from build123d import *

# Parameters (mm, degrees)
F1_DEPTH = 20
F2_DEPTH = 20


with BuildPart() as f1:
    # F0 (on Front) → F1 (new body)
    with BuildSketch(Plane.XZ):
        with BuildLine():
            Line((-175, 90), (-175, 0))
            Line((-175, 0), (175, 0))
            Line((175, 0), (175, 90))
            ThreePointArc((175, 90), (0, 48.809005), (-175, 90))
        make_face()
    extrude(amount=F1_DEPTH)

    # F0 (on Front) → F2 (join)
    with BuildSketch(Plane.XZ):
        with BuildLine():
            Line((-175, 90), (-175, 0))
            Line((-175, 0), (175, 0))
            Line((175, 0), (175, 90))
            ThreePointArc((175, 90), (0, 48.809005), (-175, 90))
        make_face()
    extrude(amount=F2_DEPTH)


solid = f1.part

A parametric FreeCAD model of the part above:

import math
import FreeCAD as App
import Part
import Sketcher
from FreeCAD import Vector

doc = App.newDocument("Part")
body = doc.addObject("PartDesign::Body", "Body")

sketch1 = body.newObject("Sketcher::SketchObject", "Sketch")
sketch1.AttachmentSupport = (doc.getObject("XZ_Plane"), [""])
sketch1.MapMode = "FlatFace"
sketch1.addGeometry(Part.LineSegment(Vector(-175, 90, 0), Vector(-175, 0, 0)), False)
sketch1.addGeometry(Part.LineSegment(Vector(-175, 0, 0), Vector(175, 0, 0)), False)
sketch1.addGeometry(Part.LineSegment(Vector(175, 0, 0), Vector(175, 90, 0)), False)
sketch1.addGeometry(Part.ArcOfCircle(Part.Circle(Vector(0, 441, 0), Vector(0, 0, 1), 392), math.radians(-116), math.radians(-64)), False)
sketch1.addConstraint(Sketcher.Constraint("Coincident", 0, 2, 1, 1))
sketch1.addConstraint(Sketcher.Constraint("Coincident", 1, 2, 2, 1))
sketch1.addConstraint(Sketcher.Constraint("Coincident", 2, 2, 3, 2))
sketch1.addConstraint(Sketcher.Constraint("Coincident", 3, 1, 0, 1))
sketch1.addConstraint(Sketcher.Constraint("Vertical", 0))
sketch1.addConstraint(Sketcher.Constraint("Horizontal", 1))
sketch1.addConstraint(Sketcher.Constraint("Vertical", 2))
sketch1.addConstraint(Sketcher.Constraint("Symmetric", 0, 2, 1, 2, -1, 1))
sketch1.addConstraint(Sketcher.Constraint("PointOnObject", 3, 3, -2))
sketch1.addConstraint(Sketcher.Constraint("DistanceX", 1, 1, 1, 2, 350.0))
sketch1.addConstraint(Sketcher.Constraint("DistanceY", 0, 2, 0, 1, 90.0))
sketch1.addConstraint(Sketcher.Constraint("Radius", 3, 392.33937))
pad1 = body.newObject("PartDesign::Pad", "Pad")
pad1.Profile = sketch1
pad1.Length = 20

sketch2 = body.newObject("Sketcher::SketchObject", "Sketch001")
sketch2.AttachmentSupport = (doc.getObject("XZ_Plane"), [""])
sketch2.MapMode = "FlatFace"
sketch2.addGeometry(Part.LineSegment(Vector(-175, 90, 0), Vector(-175, 0, 0)), False)
sketch2.addGeometry(Part.LineSegment(Vector(-175, 0, 0), Vector(175, 0, 0)), False)
sketch2.addGeometry(Part.LineSegment(Vector(175, 0, 0), Vector(175, 90, 0)), False)
sketch2.addGeometry(Part.ArcOfCircle(Part.Circle(Vector(0, 441, 0), Vector(0, 0, 1), 392), math.radians(-116), math.radians(-64)), False)
sketch2.addConstraint(Sketcher.Constraint("Coincident", 0, 2, 1, 1))
sketch2.addConstraint(Sketcher.Constraint("Coincident", 1, 2, 2, 1))
sketch2.addConstraint(Sketcher.Constraint("Coincident", 2, 2, 3, 2))
sketch2.addConstraint(Sketcher.Constraint("Coincident", 3, 1, 0, 1))
sketch2.addConstraint(Sketcher.Constraint("Vertical", 0))
sketch2.addConstraint(Sketcher.Constraint("Horizontal", 1))
sketch2.addConstraint(Sketcher.Constraint("Vertical", 2))
sketch2.addConstraint(Sketcher.Constraint("Symmetric", 0, 2, 1, 2, -1, 1))
sketch2.addConstraint(Sketcher.Constraint("PointOnObject", 3, 3, -2))
sketch2.addConstraint(Sketcher.Constraint("DistanceX", 1, 1, 1, 2, 350.0))
sketch2.addConstraint(Sketcher.Constraint("DistanceY", 0, 2, 0, 1, 90.0))
sketch2.addConstraint(Sketcher.Constraint("Radius", 3, 392.33937))
pad2 = body.newObject("PartDesign::Pad", "Pad001")
pad2.Profile = sketch2
pad2.Length = 20

doc.recompute()
